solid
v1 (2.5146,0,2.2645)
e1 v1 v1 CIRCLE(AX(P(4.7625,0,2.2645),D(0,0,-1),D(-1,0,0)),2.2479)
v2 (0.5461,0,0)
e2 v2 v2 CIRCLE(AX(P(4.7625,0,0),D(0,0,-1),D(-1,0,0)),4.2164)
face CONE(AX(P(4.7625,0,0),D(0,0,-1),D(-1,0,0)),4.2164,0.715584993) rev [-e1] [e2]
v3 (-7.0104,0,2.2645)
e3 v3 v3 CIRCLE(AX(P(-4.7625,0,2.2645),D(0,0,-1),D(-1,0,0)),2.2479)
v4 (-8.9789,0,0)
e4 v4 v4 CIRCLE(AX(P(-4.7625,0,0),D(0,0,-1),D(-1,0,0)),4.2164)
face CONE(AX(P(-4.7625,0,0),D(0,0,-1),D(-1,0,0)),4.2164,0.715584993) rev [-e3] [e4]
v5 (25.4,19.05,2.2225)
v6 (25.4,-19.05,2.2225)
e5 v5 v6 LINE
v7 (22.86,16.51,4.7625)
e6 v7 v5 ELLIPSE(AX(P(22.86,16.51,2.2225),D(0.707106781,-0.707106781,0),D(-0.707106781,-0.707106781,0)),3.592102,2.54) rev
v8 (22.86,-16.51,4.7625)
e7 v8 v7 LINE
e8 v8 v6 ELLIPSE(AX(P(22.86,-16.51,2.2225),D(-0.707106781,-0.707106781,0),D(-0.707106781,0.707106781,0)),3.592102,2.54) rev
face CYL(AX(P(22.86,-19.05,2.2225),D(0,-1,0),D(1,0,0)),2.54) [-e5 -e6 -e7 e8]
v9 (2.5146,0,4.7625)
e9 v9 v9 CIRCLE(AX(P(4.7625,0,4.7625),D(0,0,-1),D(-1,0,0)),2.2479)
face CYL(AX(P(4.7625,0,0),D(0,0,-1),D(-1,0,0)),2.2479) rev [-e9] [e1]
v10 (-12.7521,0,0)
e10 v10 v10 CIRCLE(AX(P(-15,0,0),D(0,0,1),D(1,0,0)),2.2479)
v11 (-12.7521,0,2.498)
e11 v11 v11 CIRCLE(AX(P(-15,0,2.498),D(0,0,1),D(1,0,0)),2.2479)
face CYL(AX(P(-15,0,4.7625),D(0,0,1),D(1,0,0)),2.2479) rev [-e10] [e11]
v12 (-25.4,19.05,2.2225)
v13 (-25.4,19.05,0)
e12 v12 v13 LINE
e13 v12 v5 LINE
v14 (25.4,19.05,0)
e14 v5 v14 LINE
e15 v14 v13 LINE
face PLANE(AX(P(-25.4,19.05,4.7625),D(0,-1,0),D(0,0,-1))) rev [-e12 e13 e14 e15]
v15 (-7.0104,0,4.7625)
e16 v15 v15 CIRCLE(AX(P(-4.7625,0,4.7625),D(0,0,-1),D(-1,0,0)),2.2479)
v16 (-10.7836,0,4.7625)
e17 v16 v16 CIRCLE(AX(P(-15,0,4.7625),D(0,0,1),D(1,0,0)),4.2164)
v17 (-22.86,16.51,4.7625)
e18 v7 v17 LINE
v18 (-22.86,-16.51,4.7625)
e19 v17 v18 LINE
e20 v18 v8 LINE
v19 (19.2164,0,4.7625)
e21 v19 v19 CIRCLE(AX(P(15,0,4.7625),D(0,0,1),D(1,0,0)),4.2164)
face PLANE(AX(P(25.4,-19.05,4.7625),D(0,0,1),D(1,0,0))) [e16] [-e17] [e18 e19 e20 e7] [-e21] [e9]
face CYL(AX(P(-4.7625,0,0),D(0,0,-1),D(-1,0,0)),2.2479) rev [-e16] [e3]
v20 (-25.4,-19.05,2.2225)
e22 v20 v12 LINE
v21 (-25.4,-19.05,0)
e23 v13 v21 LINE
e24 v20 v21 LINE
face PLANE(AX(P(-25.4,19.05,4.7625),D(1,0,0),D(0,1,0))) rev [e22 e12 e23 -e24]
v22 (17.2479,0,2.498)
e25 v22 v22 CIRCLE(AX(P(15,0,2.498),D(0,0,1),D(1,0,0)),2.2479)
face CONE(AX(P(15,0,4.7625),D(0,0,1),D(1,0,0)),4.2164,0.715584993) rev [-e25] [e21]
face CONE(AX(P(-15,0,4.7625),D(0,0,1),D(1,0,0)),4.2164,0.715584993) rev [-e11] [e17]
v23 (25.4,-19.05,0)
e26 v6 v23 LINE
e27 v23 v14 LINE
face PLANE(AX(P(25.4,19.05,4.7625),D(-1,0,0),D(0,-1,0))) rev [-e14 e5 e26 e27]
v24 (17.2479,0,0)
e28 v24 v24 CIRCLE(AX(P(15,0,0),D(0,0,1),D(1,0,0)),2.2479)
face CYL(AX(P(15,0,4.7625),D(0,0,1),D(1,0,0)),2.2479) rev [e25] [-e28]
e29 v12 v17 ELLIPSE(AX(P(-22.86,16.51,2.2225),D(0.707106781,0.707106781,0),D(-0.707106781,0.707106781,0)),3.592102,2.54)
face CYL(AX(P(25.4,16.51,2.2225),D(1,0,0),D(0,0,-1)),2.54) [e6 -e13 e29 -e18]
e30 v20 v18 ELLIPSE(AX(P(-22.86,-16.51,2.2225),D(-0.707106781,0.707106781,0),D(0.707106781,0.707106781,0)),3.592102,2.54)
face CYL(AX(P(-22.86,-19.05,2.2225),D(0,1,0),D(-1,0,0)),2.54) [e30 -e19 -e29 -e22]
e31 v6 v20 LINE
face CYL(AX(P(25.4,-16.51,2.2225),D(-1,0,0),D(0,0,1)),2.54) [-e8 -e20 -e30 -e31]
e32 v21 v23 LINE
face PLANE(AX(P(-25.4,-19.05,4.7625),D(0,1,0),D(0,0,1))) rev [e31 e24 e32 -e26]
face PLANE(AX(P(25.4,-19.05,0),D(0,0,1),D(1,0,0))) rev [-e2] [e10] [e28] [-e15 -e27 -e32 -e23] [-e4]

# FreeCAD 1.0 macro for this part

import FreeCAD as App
import Part
import Sketcher

V = App.Vector
Q = App.Units.Quantity


def edges_at(feature, points):
    """Names of the edges that pass closest to the given points."""
    edges = feature.Shape.Edges
    near = lambda p: min(range(len(edges)), key=lambda i: edges[i].distToShape(Part.Vertex(*p))[0])
    return sorted({f"Edge{near(p) + 1}" for p in points})

doc = App.newDocument("Part")
params = doc.addObject("Spreadsheet::Sheet", "Params")
for row, (alias, value) in enumerate([
    ("sketch1_width", "2 in"),
    ("sketch1_height", "1.5 in"),
    ("pad1_length", "0.1875 in"),
    ("sketch2_width", "0.166 in"),
    ("sketch2_height", "0.1875 in"),
    ("groove_angle", "360 deg"),
    ("linearpattern_pitch", "30 mm"),
    ("sketch3_width", "0.166 in"),
    ("sketch3_height", "0.1875 in"),
    ("groove2_angle", "360 deg"),
    ("linearpattern2_pitch", "0.375 in"),
    ("fillet_radius", "0.1 in"),
], start=1):
    params.set(f"A{row}", alias)
    params.set(f"B{row}", "=" + value)
    params.setAlias(f"B{row}", alias)

body = doc.addObject("PartDesign::Body", "Body")

# Sketch on XY plane
sketch1 = doc.addObject("Sketcher::SketchObject", "Sketch")
body.addObject(sketch1)
sketch1.AttachmentSupport = (doc.XY_Plane, [""])
sketch1.MapMode = "FlatFace"
sketch1.addGeometry(Part.LineSegment(V(-25.4, 19.05, 0), V(-25.4, -19.05, 0)), False)
sketch1.addGeometry(Part.LineSegment(V(-25.4, -19.05, 0), V(25.4, -19.05, 0)), False)
sketch1.addGeometry(Part.LineSegment(V(25.4, -19.05, 0), V(25.4, 19.05, 0)), False)
sketch1.addGeometry(Part.LineSegment(V(25.4, 19.05, 0), V(-25.4, 19.05, 0)), False)
sketch1.addConstraint(Sketcher.Constraint("Coincident", 0, 2, 1, 1))
sketch1.addConstraint(Sketcher.Constraint("Coincident", 1, 2, 2, 1))
sketch1.addConstraint(Sketcher.Constraint("Coincident", 2, 2, 3, 1))
sketch1.addConstraint(Sketcher.Constraint("Coincident", 3, 2, 0, 1))
sketch1.addConstraint(Sketcher.Constraint("Vertical", 0))
sketch1.addConstraint(Sketcher.Constraint("Horizontal", 1))
sketch1.addConstraint(Sketcher.Constraint("Vertical", 2))
sketch1.addConstraint(Sketcher.Constraint("Horizontal", 3))
sketch1.addConstraint(Sketcher.Constraint("Symmetric", 0, 2, 2, 2, -1, 1))
sketch1.addConstraint(Sketcher.Constraint("DistanceX", 1, 1, 1, 2, Q("2 in")))
sketch1.addConstraint(Sketcher.Constraint("DistanceY", 0, 2, 0, 1, Q("1.5 in")))
sketch1.setExpression("Constraints[9]", "Params.sketch1_width")
sketch1.setExpression("Constraints[10]", "Params.sketch1_height")
pad1 = doc.addObject("PartDesign::Pad", "Pad")
body.addObject(pad1)
pad1.Profile = sketch1
pad1.setExpression("Length", "Params.pad1_length")

# Sketch on YZ plane
sketch2 = doc.addObject("Sketcher::SketchObject", "Sketch001")
body.addObject(sketch2)
sketch2.AttachmentSupport = (doc.YZ_Plane, [""])
sketch2.MapMode = "FlatFace"
sketch2.AttachmentOffset = App.Placement(V(0, 0, -15), App.Rotation())
sketch2.addGeometry(Part.LineSegment(V(0, 0, 0), V(0, 4.7625, 0)), False)
sketch2.addGeometry(Part.LineSegment(V(0, 4.7625, 0), V(-4.2164, 4.7625, 0)), False)
sketch2.addGeometry(Part.LineSegment(V(-4.2164, 4.7625, 0), V(-2.2479, 2.498, 0)), False)
sketch2.addGeometry(Part.LineSegment(V(-2.2479, 2.498, 0), V(-2.2479, 0, 0)), False)
sketch2.addGeometry(Part.LineSegment(V(-2.2479, 0, 0), V(0, 0, 0)), False)
sketch2.addConstraint(Sketcher.Constraint("Coincident", 0, 2, 1, 1))
sketch2.addConstraint(Sketcher.Constraint("Coincident", 1, 2, 2, 1))
sketch2.addConstraint(Sketcher.Constraint("Coincident", 2, 2, 3, 1))
sketch2.addConstraint(Sketcher.Constraint("Coincident", 3, 2, 4, 1))
sketch2.addConstraint(Sketcher.Constraint("Coincident", 4, 2, 0, 1))
sketch2.addConstraint(Sketcher.Constraint("Vertical", 0))
sketch2.addConstraint(Sketcher.Constraint("Horizontal", 1))
sketch2.addConstraint(Sketcher.Constraint("Vertical", 3))
sketch2.addConstraint(Sketcher.Constraint("Horizontal", 4))
sketch2.addConstraint(Sketcher.Constraint("Coincident", 4, 2, -1, 1))
sketch2.addConstraint(Sketcher.Constraint("Angle", 2, Q("-49 deg")))
sketch2.addConstraint(Sketcher.Constraint("DistanceX", 1, 2, 1, 1, Q("0.166 in")))
sketch2.addConstraint(Sketcher.Constraint("DistanceY", 0, 1, 0, 2, Q("0.1875 in")))
sketch2.addConstraint(Sketcher.Constraint("DistanceX", 4, 1, 4, 2, Q("0.0885 in")))
sketch2.setExpression("Constraints[11]", "Params.sketch2_width")
sketch2.setExpression("Constraints[12]", "Params.sketch2_height")
groove = doc.addObject("PartDesign::Groove", "Groove")
body.addObject(groove)
groove.Profile = sketch2
groove.ReferenceAxis = (sketch2, ["V_Axis"])
groove.setExpression("Angle", "Params.groove_angle")
doc.recompute()

linearpattern = doc.addObject("PartDesign::LinearPattern", "LinearPattern")
body.addObject(linearpattern)
linearpattern.Originals = [groove]
linearpattern.Direction = (doc.X_Axis, [""])
linearpattern.Mode = "offset"
linearpattern.setExpression("Offset", "Params.linearpattern_pitch")
linearpattern.Occurrences = 2
body.Tip = linearpattern

# Sketch on YZ plane
sketch3 = doc.addObject("Sketcher::SketchObject", "Sketch002")
body.addObject(sketch3)
sketch3.AttachmentSupport = (doc.YZ_Plane, [""])
sketch3.MapMode = "FlatFace"
sketch3.AttachmentOffset = App.Placement(V(0, 0, 0.1875 * 25.4), App.Rotation())
sketch3.addGeometry(Part.LineSegment(V(0, 4.7625, 0), V(0, 0, 0)), False)
sketch3.addGeometry(Part.LineSegment(V(0, 0, 0), V(4.2164, 0, 0)), False)
sketch3.addGeometry(Part.LineSegment(V(4.2164, 0, 0), V(2.2479, 2.2645, 0)), False)
sketch3.addGeometry(Part.LineSegment(V(2.2479, 2.2645, 0), V(2.2479, 4.7625, 0)), False)
sketch3.addGeometry(Part.LineSegment(V(2.2479, 4.7625, 0), V(0, 4.7625, 0)), False)
sketch3.addConstraint(Sketcher.Constraint("Coincident", 0, 2, 1, 1))
sketch3.addConstraint(Sketcher.Constraint("Coincident", 1, 2, 2, 1))
sketch3.addConstraint(Sketcher.Constraint("Coincident", 2, 2, 3, 1))
sketch3.addConstraint(Sketcher.Constraint("Coincident", 3, 2, 4, 1))
sketch3.addConstraint(Sketcher.Constraint("Coincident", 4, 2, 0, 1))
sketch3.addConstraint(Sketcher.Constraint("Vertical", 0))
sketch3.addConstraint(Sketcher.Constraint("Horizontal", 1))
sketch3.addConstraint(Sketcher.Constraint("Vertical", 3))
sketch3.addConstraint(Sketcher.Constraint("Horizontal", 4))
sketch3.addConstraint(Sketcher.Constraint("Coincident", 0, 2, -1, 1))
sketch3.addConstraint(Sketcher.Constraint("Angle", 2, Q("131 deg")))
sketch3.addConstraint(Sketcher.Constraint("DistanceX", 1, 1, 1, 2, Q("0.166 in")))
sketch3.addConstraint(Sketcher.Constraint("DistanceY", 0, 2, 0, 1, Q("0.1875 in")))
sketch3.addConstraint(Sketcher.Constraint("DistanceX", 4, 2, 4, 1, Q("0.0885 in")))
sketch3.setExpression("Constraints[11]", "Params.sketch3_width")
sketch3.setExpression("Constraints[12]", "Params.sketch3_height")
groove2 = doc.addObject("PartDesign::Groove", "Groove001")
body.addObject(groove2)
groove2.Profile = sketch3
groove2.ReferenceAxis = (sketch3, ["V_Axis"])
groove2.setExpression("Angle", "Params.groove2_angle")
doc.recompute()

linearpattern2 = doc.addObject("PartDesign::LinearPattern", "LinearPattern001")
body.addObject(linearpattern2)
linearpattern2.Originals = [groove2]
linearpattern2.Direction = (doc.X_Axis, [""])
linearpattern2.Mode = "offset"
linearpattern2.setExpression("Offset", "Params.linearpattern2_pitch")
linearpattern2.Occurrences = 2
linearpattern2.Reversed = True
body.Tip = linearpattern2
doc.recompute()

fillet = doc.addObject("PartDesign::Fillet", "Fillet")
body.addObject(fillet)
fillet.Base = (linearpattern2, edges_at(linearpattern2, [
    (-25.4, 0, 4.763),
    (0, -19.05, 4.763),
    (25.4, 0, 4.763),
    (0, 19.05, 4.763),
]))
fillet.setExpression("Radius", "Params.fillet_radius")

doc.recompute()
